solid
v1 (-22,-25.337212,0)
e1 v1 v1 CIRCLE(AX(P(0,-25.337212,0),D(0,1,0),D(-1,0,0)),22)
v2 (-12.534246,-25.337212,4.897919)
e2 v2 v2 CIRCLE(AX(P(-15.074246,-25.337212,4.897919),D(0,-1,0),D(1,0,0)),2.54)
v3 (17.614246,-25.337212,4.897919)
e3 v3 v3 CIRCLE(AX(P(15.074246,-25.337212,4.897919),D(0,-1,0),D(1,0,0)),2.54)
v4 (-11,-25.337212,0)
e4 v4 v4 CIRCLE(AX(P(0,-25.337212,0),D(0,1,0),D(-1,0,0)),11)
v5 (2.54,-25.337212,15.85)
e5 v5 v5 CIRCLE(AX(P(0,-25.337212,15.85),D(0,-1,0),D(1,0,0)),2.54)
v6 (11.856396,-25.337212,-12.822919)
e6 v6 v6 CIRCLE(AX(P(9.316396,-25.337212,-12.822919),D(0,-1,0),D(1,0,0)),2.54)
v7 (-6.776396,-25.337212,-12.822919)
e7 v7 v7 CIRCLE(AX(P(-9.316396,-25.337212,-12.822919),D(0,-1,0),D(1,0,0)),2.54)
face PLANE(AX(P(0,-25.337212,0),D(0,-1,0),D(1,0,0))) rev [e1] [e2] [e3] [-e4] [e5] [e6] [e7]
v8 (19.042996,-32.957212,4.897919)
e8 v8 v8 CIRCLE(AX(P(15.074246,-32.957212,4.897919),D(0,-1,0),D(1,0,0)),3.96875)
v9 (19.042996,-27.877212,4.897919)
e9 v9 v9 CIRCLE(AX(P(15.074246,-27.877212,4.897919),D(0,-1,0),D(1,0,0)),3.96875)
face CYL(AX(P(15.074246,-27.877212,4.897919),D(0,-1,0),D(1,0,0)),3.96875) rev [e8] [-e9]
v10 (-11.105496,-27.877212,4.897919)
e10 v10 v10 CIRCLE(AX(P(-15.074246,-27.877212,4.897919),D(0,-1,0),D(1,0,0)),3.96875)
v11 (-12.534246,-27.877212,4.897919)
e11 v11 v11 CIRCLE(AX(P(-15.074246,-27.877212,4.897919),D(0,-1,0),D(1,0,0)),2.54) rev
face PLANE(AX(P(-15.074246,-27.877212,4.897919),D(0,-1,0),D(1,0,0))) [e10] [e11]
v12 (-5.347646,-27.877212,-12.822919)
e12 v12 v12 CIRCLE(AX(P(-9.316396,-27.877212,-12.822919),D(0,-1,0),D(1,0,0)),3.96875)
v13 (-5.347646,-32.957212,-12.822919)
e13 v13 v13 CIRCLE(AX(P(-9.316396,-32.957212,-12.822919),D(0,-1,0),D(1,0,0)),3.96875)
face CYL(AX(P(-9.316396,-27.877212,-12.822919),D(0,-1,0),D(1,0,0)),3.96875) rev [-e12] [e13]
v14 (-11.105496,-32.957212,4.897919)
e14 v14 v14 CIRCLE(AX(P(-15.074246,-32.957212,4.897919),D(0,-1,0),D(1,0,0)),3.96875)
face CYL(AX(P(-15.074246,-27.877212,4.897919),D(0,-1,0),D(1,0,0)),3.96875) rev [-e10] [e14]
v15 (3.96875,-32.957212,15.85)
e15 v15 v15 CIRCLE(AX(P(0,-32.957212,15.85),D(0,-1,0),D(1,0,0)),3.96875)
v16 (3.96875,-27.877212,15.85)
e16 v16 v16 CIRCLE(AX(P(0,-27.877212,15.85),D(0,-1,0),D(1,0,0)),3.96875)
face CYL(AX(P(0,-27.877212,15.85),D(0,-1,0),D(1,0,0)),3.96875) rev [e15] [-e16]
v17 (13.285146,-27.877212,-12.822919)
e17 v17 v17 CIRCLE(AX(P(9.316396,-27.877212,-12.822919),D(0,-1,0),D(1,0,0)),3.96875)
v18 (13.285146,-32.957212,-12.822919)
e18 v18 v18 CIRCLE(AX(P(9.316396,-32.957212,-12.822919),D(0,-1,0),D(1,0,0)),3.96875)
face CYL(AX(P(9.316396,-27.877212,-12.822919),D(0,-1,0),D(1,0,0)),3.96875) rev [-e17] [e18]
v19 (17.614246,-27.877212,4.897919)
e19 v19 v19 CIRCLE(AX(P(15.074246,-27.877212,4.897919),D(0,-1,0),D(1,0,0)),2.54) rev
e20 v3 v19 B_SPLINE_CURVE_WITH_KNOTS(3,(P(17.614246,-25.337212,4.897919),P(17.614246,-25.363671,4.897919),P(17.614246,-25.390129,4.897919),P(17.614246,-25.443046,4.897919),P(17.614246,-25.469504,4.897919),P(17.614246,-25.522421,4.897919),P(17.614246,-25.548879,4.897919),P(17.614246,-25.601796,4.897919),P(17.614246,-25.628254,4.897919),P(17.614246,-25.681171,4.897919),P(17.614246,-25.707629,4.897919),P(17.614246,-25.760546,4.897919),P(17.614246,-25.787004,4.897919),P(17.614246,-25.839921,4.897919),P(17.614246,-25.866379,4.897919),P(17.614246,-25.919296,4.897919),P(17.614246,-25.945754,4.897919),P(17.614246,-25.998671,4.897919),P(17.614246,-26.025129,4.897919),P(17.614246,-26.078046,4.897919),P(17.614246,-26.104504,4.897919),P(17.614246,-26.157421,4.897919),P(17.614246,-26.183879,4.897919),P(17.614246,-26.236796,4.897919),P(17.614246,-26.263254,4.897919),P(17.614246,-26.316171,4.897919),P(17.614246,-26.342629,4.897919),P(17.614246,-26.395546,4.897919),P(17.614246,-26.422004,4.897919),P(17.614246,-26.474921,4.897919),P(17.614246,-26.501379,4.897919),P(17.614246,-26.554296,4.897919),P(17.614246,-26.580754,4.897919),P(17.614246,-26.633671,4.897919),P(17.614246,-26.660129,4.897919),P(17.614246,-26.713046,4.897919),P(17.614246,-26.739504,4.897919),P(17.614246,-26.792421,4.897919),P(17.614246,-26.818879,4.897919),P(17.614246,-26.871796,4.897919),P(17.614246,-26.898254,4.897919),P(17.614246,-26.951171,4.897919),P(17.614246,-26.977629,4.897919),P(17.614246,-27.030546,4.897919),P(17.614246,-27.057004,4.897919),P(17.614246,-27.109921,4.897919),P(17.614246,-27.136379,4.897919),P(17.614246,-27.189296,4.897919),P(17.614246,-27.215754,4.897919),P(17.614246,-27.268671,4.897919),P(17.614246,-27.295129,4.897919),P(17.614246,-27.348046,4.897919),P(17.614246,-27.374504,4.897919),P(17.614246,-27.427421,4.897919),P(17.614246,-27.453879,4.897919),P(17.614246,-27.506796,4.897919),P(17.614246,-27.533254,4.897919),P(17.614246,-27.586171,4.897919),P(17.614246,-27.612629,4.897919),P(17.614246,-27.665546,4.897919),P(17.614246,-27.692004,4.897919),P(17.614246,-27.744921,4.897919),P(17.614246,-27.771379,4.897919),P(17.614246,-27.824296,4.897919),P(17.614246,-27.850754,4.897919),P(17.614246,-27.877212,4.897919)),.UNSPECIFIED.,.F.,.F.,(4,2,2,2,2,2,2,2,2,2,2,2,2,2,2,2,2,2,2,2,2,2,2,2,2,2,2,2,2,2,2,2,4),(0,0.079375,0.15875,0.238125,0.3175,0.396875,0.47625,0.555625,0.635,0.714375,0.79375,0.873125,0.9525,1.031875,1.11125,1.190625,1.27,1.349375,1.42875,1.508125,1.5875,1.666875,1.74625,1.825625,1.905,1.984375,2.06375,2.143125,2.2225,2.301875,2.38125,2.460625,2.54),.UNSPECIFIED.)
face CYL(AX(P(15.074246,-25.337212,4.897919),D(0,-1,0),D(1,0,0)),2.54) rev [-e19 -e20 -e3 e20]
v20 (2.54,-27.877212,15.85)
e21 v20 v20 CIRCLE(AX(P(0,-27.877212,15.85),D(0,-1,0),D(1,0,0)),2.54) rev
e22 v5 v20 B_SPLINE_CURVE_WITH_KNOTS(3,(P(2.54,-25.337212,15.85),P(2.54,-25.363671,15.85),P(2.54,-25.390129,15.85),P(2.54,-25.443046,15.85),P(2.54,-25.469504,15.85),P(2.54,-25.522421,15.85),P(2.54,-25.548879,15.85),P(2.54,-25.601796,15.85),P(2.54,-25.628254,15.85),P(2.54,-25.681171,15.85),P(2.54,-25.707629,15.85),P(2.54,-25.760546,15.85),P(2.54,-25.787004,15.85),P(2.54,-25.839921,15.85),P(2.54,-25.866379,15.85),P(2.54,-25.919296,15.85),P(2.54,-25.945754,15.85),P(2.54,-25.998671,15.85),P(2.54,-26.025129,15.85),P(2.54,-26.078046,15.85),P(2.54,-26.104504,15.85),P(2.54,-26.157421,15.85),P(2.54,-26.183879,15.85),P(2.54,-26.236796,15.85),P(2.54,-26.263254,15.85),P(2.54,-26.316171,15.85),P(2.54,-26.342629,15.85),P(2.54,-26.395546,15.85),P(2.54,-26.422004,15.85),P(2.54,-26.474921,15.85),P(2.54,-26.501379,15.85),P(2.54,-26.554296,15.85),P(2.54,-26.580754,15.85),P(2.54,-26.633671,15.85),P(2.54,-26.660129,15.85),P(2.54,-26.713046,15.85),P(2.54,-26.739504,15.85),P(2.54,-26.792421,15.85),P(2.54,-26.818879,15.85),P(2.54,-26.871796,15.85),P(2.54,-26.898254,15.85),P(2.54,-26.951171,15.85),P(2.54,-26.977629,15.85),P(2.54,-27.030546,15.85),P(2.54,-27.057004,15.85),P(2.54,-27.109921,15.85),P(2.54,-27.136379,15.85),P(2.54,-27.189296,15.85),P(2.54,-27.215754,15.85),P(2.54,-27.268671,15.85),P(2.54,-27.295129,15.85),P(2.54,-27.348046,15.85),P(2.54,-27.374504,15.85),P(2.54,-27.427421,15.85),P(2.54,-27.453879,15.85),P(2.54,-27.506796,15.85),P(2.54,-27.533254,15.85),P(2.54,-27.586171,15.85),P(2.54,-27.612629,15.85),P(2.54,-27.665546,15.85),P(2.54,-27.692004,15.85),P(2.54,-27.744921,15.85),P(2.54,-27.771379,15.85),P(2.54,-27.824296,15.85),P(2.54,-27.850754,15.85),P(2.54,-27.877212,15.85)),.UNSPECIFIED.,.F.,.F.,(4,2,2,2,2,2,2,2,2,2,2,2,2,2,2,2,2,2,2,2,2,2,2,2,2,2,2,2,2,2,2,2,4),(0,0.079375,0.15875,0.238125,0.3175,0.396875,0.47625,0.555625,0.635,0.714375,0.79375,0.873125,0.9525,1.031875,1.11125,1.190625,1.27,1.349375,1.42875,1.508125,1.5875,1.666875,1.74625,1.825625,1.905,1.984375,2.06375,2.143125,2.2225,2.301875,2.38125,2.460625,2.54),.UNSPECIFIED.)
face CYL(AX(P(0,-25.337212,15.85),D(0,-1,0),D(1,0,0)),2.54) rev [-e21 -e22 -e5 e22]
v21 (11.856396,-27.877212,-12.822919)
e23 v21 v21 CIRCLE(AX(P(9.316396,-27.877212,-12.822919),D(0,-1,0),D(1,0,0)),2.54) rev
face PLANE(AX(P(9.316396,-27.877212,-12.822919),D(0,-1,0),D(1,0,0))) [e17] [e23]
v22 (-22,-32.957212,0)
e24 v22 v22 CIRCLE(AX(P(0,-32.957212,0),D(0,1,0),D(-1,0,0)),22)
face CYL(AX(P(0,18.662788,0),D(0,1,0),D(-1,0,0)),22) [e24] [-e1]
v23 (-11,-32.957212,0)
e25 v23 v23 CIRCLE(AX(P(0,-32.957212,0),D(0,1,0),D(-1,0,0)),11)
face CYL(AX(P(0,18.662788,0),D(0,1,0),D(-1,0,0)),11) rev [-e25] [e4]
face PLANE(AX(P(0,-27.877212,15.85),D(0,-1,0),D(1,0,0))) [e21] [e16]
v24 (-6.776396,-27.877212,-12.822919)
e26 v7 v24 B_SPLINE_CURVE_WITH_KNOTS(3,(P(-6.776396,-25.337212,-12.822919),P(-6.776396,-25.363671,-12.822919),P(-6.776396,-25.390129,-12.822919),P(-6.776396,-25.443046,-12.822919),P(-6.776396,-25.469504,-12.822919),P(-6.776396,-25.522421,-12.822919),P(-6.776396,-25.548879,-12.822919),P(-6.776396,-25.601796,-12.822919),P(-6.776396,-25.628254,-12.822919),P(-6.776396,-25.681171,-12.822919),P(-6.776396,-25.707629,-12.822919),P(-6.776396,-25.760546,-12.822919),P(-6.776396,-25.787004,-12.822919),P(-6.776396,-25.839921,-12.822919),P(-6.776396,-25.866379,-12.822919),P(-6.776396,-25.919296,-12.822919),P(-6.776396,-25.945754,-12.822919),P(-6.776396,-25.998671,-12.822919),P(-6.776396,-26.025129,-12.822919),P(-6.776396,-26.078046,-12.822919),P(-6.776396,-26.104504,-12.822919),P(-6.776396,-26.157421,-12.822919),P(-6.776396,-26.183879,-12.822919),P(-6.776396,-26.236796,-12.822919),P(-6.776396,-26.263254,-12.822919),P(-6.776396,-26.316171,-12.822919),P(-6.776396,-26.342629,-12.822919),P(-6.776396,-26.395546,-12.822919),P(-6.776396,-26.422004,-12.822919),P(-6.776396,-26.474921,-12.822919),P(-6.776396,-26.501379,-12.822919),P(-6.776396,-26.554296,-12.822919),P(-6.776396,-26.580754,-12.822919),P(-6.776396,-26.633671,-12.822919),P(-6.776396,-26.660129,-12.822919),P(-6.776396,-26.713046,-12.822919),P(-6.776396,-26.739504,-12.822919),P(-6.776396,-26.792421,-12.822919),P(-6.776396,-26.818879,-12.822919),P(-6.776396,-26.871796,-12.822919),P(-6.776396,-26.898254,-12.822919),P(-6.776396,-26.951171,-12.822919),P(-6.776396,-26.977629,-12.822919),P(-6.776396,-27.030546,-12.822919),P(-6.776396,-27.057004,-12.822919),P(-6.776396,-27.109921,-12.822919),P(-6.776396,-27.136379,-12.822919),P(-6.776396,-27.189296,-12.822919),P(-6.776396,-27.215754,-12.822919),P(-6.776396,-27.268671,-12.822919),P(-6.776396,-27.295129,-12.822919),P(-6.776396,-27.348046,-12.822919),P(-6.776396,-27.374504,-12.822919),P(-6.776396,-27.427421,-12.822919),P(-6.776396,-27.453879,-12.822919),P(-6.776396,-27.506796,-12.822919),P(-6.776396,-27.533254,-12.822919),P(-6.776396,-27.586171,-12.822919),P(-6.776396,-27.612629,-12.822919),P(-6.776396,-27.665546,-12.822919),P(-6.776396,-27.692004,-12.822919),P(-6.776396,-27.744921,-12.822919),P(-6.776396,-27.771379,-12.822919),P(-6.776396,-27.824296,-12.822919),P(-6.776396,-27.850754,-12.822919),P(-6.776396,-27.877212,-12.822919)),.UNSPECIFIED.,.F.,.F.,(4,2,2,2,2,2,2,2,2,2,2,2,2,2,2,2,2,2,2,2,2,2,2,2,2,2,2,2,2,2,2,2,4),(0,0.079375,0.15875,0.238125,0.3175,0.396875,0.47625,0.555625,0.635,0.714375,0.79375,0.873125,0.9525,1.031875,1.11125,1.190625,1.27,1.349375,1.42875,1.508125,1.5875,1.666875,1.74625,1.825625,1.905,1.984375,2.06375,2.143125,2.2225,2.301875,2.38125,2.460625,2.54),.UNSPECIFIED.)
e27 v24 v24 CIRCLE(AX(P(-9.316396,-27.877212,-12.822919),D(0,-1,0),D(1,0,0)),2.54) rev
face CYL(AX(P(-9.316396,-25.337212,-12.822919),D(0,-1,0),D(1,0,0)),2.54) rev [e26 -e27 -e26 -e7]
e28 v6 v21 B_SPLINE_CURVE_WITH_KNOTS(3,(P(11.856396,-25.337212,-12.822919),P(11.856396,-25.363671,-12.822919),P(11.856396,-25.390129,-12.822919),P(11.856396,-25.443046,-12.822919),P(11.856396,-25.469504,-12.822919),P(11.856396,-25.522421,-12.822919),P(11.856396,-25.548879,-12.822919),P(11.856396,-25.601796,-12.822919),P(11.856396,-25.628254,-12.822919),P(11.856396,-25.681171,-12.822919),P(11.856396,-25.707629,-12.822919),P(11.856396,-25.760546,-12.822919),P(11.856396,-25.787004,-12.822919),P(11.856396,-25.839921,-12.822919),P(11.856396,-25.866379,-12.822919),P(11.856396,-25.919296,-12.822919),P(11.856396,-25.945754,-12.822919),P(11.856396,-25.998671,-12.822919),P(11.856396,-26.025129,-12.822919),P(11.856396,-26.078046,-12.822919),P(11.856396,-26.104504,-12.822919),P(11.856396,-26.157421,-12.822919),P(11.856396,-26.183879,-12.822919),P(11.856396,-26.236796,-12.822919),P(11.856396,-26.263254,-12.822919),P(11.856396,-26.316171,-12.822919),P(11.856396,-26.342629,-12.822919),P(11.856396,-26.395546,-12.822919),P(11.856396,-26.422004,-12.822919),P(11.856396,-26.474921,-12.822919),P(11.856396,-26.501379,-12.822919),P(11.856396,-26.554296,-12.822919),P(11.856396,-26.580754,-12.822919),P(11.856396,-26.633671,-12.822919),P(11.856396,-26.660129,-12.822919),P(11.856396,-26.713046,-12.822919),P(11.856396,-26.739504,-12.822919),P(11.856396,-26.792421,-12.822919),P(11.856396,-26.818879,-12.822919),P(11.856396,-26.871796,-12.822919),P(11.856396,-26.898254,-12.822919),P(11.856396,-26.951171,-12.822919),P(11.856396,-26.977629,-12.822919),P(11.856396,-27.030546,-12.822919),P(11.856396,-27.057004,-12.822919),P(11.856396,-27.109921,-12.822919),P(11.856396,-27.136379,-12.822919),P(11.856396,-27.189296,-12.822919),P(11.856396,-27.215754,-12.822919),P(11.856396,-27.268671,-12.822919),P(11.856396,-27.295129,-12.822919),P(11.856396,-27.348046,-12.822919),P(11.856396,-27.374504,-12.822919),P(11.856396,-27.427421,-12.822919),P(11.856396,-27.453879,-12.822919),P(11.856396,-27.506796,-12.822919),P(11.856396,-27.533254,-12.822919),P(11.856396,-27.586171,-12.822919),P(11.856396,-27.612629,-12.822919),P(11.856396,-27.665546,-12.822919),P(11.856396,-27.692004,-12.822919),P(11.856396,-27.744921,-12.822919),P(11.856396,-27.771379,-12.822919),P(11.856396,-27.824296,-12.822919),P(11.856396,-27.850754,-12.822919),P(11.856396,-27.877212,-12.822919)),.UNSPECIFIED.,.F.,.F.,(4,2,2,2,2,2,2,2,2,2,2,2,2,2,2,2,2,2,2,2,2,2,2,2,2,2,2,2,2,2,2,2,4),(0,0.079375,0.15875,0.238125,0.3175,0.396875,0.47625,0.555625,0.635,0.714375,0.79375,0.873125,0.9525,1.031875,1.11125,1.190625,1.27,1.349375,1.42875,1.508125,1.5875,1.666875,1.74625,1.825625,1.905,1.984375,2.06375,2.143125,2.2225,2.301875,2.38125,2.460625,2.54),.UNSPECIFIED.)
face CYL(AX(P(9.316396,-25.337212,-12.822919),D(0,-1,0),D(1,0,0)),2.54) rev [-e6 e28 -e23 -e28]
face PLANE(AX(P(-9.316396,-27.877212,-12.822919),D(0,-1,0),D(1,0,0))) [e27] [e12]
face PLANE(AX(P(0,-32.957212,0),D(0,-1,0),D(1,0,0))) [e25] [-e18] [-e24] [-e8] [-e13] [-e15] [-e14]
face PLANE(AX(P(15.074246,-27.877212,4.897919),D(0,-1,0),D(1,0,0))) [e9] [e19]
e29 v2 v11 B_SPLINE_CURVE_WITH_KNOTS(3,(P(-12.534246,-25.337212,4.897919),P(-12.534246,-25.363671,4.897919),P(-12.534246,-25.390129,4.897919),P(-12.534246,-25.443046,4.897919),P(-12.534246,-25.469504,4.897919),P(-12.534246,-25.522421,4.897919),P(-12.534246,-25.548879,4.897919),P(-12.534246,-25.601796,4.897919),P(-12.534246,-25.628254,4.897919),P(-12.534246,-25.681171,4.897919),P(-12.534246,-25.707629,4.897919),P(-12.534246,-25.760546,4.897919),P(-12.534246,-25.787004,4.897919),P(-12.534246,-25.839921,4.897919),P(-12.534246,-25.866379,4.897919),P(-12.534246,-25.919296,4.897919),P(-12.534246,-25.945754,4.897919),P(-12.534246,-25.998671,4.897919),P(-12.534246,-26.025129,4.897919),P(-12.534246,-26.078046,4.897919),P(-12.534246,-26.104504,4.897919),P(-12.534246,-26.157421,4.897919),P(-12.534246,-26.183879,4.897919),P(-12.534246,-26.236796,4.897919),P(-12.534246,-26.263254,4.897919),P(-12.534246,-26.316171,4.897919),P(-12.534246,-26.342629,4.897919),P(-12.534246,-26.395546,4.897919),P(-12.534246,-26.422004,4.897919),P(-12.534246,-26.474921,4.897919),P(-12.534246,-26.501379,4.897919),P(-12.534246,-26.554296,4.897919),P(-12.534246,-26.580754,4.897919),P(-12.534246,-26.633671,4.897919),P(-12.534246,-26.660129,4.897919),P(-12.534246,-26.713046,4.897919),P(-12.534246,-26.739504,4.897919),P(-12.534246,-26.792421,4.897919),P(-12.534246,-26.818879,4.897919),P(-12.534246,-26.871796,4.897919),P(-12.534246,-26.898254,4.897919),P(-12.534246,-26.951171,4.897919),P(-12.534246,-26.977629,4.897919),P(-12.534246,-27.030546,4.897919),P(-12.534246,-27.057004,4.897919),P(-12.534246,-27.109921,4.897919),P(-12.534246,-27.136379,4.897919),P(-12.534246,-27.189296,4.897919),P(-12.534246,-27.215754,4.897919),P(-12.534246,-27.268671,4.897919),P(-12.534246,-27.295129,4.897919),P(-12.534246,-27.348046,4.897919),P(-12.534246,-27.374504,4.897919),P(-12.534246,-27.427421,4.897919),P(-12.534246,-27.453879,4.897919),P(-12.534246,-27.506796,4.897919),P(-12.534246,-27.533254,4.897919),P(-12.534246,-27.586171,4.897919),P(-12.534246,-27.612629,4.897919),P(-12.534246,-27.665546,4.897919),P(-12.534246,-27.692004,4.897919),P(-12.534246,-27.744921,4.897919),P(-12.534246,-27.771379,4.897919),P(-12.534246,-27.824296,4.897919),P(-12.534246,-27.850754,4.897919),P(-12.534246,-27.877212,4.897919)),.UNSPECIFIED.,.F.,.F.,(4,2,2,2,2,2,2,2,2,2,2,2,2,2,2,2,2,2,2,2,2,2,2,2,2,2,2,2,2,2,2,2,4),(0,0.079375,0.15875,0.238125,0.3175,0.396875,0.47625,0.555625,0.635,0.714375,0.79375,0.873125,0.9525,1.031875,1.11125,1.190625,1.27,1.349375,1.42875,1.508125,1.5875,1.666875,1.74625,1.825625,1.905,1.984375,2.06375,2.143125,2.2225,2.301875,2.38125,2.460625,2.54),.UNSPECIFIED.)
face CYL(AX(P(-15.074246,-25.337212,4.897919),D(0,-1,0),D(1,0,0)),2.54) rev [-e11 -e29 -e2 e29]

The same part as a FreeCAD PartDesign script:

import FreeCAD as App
import Part
import Sketcher

V = App.Vector
Q = App.Units.Quantity

doc = App.newDocument("Part")
body = doc.addObject("PartDesign::Body", "Body")

# Sketch on XY plane
sketch1 = body.newObject("Sketcher::SketchObject", "Sketch")
sketch1.AttachmentSupport = (doc.getObject("XY_Plane"), [""])
sketch1.MapMode = "FlatFace"
sketch1.addGeometry(Part.LineSegment(V(11, -25, 0), V(11, -33, 0)), False)
sketch1.addGeometry(Part.LineSegment(V(11, -33, 0), V(22, -33, 0)), False)
sketch1.addGeometry(Part.LineSegment(V(22, -33, 0), V(22, -25, 0)), False)
sketch1.addGeometry(Part.LineSegment(V(22, -25, 0), V(11, -25, 0)), False)
sketch1.addConstraint(Sketcher.Constraint("Coincident", 0, 2, 1, 1))
sketch1.addConstraint(Sketcher.Constraint("Coincident", 1, 2, 2, 1))
sketch1.addConstraint(Sketcher.Constraint("Coincident", 2, 2, 3, 1))
sketch1.addConstraint(Sketcher.Constraint("Coincident", 3, 2, 0, 1))
sketch1.addConstraint(Sketcher.Constraint("Vertical", 0))
sketch1.addConstraint(Sketcher.Constraint("Horizontal", 1))
sketch1.addConstraint(Sketcher.Constraint("Vertical", 2))
sketch1.addConstraint(Sketcher.Constraint("Horizontal", 3))
sketch1.addConstraint(Sketcher.Constraint("DistanceY", 0, 2, 0, 1, Q("0.3 in")))
sketch1.addConstraint(Sketcher.Constraint("DistanceX", 1, 1, 1, 2, 11.0))
sketch1.addConstraint(Sketcher.Constraint("DistanceX", -1, 1, 0, 2, 11.0))
sketch1.addConstraint(Sketcher.Constraint("DistanceY", 0, 2, -1, 1, 32.957212))
revolution = body.newObject("PartDesign::Revolution", "Revolution")
revolution.Profile = sketch1
revolution.ReferenceAxis = (sketch1, ["V_Axis"])
revolution.Angle = 360

# Sketch on XZ plane
sketch2 = body.newObject("Sketcher::SketchObject", "Sketch001")
sketch2.AttachmentSupport = (doc.getObject("XZ_Plane"), [""])
sketch2.MapMode = "FlatFace"
sketch2.AttachmentOffset = App.Placement(V(0, 0, 32.957212), App.Rotation())
sketch2.addGeometry(Part.Circle(V(15.1, 4.9, 0), V(0, 0, 1), 2.5), False)
sketch2.addGeometry(Part.Circle(V(0, 15.8, 0), V(0, 0, 1), 2.5), False)
sketch2.addGeometry(Part.Circle(V(9.3, -12.8, 0), V(0, 0, 1), 2.5), False)
sketch2.addGeometry(Part.Circle(V(-9.3, -12.8, 0), V(0, 0, 1), 2.5), False)
sketch2.addGeometry(Part.Circle(V(-15.1, 4.9, 0), V(0, 0, 1), 2.5), False)
sketch2.addConstraint(Sketcher.Constraint("Equal", 0, 1))
sketch2.addConstraint(Sketcher.Constraint("Equal", 1, 2))
sketch2.addConstraint(Sketcher.Constraint("Equal", 2, 3))
sketch2.addConstraint(Sketcher.Constraint("Equal", 3, 4))
sketch2.addConstraint(Sketcher.Constraint("Symmetric", 2, 3, 3, 3, -2))
sketch2.addConstraint(Sketcher.Constraint("Symmetric", 0, 3, 4, 3, -2))
sketch2.addConstraint(Sketcher.Constraint("PointOnObject", 1, 3, -2))
sketch2.addConstraint(Sketcher.Constraint("Diameter", 0, Q("0.2 in")))
sketch2.addConstraint(Sketcher.Constraint("DistanceY", -1, 1, 1, 3, 15.85))
sketch2.addConstraint(Sketcher.Constraint("DistanceY", -1, 1, 0, 3, 4.897919))
sketch2.addConstraint(Sketcher.Constraint("DistanceY", 2, 3, -1, 1, 12.822919))
sketch2.addConstraint(Sketcher.Constraint("DistanceX", 2, 3, 0, 3, 5.75785))
sketch2.addConstraint(Sketcher.Constraint("DistanceX", 4, 3, 0, 3, 30.148492))
pocket1 = body.newObject("PartDesign::Pocket", "Pocket")
pocket1.Profile = sketch2
pocket1.Type = "ThroughAll"

# Sketch on XZ plane
sketch3 = body.newObject("Sketcher::SketchObject", "Sketch002")
sketch3.AttachmentSupport = (doc.getObject("XZ_Plane"), [""])
sketch3.MapMode = "FlatFace"
sketch3.AttachmentOffset = App.Placement(V(0, 0, 32.957212), App.Rotation())
sketch3.addGeometry(Part.Circle(V(0, 15.8, 0), V(0, 0, 1), 4), False)
sketch3.addGeometry(Part.Circle(V(15.1, 4.9, 0), V(0, 0, 1), 4), False)
sketch3.addGeometry(Part.Circle(V(9.3, -12.8, 0), V(0, 0, 1), 4), False)
sketch3.addGeometry(Part.Circle(V(-9.3, -12.8, 0), V(0, 0, 1), 4), False)
sketch3.addGeometry(Part.Circle(V(-15.1, 4.9, 0), V(0, 0, 1), 4), False)
sketch3.addConstraint(Sketcher.Constraint("Equal", 0, 1))
sketch3.addConstraint(Sketcher.Constraint("Equal", 1, 2))
sketch3.addConstraint(Sketcher.Constraint("Equal", 2, 3))
sketch3.addConstraint(Sketcher.Constraint("Equal", 3, 4))
sketch3.addConstraint(Sketcher.Constraint("Symmetric", 2, 3, 3, 3, -2))
sketch3.addConstraint(Sketcher.Constraint("Symmetric", 1, 3, 4, 3, -2))
sketch3.addConstraint(Sketcher.Constraint("PointOnObject", 0, 3, -2))
sketch3.addConstraint(Sketcher.Constraint("Diameter", 0, Q("0.3125 in")))
sketch3.addConstraint(Sketcher.Constraint("DistanceY", -1, 1, 0, 3, 15.85))
sketch3.addConstraint(Sketcher.Constraint("DistanceY", -1, 1, 1, 3, 4.897919))
sketch3.addConstraint(Sketcher.Constraint("DistanceY", 2, 3, -1, 1, 12.822919))
sketch3.addConstraint(Sketcher.Constraint("DistanceX", 2, 3, 1, 3, 5.75785))
sketch3.addConstraint(Sketcher.Constraint("DistanceX", 4, 3, 1, 3, 30.148492))
pocket2 = body.newObject("PartDesign::Pocket", "Pocket001")
pocket2.Profile = sketch3
pocket2.Length = Q("0.2 in")

doc.recompute()
